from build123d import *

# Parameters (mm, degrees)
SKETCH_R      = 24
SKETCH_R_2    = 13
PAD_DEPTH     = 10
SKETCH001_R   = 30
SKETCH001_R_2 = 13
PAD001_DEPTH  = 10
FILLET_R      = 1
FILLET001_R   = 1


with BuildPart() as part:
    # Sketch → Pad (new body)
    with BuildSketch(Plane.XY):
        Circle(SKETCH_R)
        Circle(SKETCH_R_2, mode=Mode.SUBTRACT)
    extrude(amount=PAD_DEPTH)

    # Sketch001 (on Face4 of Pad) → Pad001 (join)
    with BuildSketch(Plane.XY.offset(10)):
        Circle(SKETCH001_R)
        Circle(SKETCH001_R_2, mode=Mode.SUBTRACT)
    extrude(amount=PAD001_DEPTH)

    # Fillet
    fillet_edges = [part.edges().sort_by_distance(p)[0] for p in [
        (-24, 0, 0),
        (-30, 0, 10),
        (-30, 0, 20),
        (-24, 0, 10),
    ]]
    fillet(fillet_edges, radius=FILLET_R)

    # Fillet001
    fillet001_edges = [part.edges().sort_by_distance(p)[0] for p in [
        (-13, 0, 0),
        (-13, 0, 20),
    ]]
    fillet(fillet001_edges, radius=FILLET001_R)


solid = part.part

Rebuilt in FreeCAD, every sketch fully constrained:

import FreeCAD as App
import Part
import Sketcher

V = App.Vector


def edges_at(feature, points):
    """Names of the edges that pass closest to the given points."""
    edges = feature.Shape.Edges
    near = lambda p: min(range(len(edges)), key=lambda i: edges[i].distToShape(Part.Vertex(*p))[0])
    return sorted({f"Edge{near(p) + 1}" for p in points})

doc = App.newDocument("Part")
body = doc.addObject("PartDesign::Body", "Body")

# Sketch on XY plane
sketch1 = body.newObject("Sketcher::SketchObject", "Sketch")
sketch1.AttachmentSupport = (doc.getObject("XY_Plane"), [""])
sketch1.MapMode = "FlatFace"
sketch1.addGeometry([
    Part.Circle(V(0, 0, 0), V(0, 0, 1), 24),
    Part.Circle(V(0, 0, 0), V(0, 0, 1), 13),
], False)
sketch1.addConstraint([
    Sketcher.Constraint("Coincident", 0, 3, -1, 1),
    Sketcher.Constraint("Coincident", 1, 3, -1, 1),
    Sketcher.Constraint("Diameter", 0, 48.0),
    Sketcher.Constraint("Diameter", 1, 26.0),
])
pad1 = body.newObject("PartDesign::Pad", "Pad")
pad1.Profile = sketch1
pad1.Length = 10

# Sketch on XY plane
sketch2 = body.newObject("Sketcher::SketchObject", "Sketch001")
sketch2.AttachmentSupport = (doc.getObject("XY_Plane"), [""])
sketch2.MapMode = "FlatFace"
sketch2.AttachmentOffset = App.Placement(V(0, 0, 10), App.Rotation())
sketch2.addGeometry([
    Part.Circle(V(0, 0, 0), V(0, 0, 1), 30),
    Part.Circle(V(0, 0, 0), V(0, 0, 1), 13),
], False)
sketch2.addConstraint([
    Sketcher.Constraint("Coincident", 0, 3, -1, 1),
    Sketcher.Constraint("Coincident", 1, 3, -1, 1),
    Sketcher.Constraint("Diameter", 0, 60.0),
    Sketcher.Constraint("Diameter", 1, 26.0),
])
pad2 = body.newObject("PartDesign::Pad", "Pad001")
pad2.Profile = sketch2
pad2.Length = 10
doc.recompute()

fillet = body.newObject("PartDesign::Fillet", "Fillet")
fillet.Base = (pad2, edges_at(pad2, [
    (-24, 0, 0),
    (-30, 0, 10),
    (-30, 0, 20),
    (-24, 0, 10),
]))
fillet.Radius = 1
doc.recompute()

fillet2 = body.newObject("PartDesign::Fillet", "Fillet001")
fillet2.Base = (fillet, edges_at(fillet, [(-13, 0, 0), (-13, 0, 20)]))
fillet2.Radius = 1

doc.recompute()
